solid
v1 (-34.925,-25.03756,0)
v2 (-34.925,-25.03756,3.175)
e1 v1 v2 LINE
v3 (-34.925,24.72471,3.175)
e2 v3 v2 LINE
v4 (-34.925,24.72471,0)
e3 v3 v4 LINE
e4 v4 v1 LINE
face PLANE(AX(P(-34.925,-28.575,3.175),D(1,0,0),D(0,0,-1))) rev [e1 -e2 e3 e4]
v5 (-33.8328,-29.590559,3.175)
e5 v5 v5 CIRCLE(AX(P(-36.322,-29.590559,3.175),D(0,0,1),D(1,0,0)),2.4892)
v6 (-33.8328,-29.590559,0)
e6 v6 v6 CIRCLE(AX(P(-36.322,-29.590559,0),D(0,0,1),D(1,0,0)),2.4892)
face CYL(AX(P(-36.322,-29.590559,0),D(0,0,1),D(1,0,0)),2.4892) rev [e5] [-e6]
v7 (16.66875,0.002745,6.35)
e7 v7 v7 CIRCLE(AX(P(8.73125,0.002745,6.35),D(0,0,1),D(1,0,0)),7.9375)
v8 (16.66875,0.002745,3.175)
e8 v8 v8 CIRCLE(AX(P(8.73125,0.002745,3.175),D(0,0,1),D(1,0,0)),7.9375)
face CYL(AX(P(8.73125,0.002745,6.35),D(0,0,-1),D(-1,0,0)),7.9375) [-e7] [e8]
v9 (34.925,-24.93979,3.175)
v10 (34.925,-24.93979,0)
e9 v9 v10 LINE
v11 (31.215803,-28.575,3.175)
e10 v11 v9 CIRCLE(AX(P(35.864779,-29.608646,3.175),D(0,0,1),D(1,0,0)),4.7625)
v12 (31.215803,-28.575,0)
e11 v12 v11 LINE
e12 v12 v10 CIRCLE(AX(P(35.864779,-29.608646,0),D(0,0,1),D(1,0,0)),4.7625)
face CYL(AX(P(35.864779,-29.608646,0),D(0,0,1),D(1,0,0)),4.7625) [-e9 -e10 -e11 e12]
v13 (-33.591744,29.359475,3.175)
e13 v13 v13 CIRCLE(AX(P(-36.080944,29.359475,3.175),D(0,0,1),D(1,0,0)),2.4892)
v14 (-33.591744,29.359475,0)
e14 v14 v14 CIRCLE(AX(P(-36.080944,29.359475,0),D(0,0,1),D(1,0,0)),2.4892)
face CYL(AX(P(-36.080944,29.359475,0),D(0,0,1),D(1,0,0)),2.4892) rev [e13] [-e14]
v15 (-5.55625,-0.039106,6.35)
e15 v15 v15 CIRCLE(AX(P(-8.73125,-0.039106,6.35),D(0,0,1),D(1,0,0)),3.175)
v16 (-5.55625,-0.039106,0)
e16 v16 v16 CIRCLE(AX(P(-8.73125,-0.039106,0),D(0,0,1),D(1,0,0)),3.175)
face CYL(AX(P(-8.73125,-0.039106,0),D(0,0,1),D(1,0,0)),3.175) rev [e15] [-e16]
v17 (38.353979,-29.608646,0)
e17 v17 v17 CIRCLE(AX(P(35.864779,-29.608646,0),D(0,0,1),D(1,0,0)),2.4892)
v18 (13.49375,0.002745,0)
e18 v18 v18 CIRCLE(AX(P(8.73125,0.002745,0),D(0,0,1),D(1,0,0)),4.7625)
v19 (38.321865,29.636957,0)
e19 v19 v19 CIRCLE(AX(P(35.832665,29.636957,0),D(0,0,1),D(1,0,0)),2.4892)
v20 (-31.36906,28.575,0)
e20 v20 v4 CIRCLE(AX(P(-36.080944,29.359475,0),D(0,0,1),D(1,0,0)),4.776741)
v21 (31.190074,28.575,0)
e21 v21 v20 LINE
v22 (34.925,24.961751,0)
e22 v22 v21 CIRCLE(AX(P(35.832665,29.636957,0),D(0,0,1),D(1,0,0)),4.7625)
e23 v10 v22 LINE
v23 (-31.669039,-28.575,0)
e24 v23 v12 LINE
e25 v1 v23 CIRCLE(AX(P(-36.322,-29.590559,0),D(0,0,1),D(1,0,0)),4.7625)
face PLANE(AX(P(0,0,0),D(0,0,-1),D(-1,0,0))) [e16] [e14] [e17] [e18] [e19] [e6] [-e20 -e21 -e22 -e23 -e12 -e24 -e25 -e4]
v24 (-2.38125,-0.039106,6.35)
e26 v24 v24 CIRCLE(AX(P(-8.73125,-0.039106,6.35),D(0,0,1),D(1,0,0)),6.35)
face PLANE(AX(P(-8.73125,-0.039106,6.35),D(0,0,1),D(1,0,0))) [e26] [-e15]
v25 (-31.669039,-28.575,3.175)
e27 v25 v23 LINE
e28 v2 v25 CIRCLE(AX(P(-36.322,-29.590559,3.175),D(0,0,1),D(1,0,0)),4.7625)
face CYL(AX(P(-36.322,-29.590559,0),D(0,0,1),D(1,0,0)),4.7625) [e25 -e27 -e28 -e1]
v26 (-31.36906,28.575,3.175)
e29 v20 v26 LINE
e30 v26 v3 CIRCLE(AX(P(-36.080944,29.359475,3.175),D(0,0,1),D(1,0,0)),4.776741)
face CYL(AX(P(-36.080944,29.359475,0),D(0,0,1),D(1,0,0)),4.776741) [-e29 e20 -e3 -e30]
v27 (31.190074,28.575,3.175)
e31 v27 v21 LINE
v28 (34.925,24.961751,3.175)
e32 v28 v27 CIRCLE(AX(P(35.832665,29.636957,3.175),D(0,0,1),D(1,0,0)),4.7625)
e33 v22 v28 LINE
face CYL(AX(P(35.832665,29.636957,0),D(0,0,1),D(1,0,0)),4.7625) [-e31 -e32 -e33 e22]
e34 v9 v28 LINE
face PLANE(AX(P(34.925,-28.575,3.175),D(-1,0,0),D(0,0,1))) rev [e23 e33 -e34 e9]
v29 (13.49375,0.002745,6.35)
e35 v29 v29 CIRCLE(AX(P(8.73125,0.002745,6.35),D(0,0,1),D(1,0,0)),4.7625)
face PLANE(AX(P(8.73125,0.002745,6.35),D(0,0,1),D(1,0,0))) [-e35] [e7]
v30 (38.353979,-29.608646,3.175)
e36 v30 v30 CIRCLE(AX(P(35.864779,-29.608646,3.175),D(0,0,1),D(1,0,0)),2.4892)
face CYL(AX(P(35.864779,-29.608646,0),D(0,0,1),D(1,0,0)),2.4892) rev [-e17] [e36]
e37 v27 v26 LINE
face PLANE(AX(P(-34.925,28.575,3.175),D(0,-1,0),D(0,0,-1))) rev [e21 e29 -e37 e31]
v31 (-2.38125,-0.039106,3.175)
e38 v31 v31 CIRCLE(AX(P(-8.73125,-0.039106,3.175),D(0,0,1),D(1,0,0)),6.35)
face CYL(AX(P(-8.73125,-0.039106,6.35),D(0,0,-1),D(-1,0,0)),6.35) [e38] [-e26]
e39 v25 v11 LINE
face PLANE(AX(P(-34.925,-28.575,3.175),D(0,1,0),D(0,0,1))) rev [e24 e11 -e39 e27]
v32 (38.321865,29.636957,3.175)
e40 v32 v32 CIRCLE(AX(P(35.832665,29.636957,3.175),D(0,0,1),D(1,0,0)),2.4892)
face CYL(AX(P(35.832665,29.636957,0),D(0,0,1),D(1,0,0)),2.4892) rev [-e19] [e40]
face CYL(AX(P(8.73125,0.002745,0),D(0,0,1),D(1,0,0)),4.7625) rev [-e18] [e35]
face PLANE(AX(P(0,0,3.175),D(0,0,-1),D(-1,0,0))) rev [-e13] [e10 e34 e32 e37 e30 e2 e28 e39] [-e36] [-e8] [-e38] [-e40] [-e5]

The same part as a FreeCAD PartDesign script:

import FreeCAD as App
import Part
import Sketcher

V = App.Vector
Q = App.Units.Quantity


def add_polygon(sketch, points):
    """Adds a closed chain of lines whose ends are joined by coincident constraints."""
    first, n = sketch.GeometryCount, len(points)
    for a, b in zip(points, points[1:] + points[:1]):
        sketch.addGeometry(Part.LineSegment(App.Vector(*a, 0), App.Vector(*b, 0)), False)
    for i in range(n):
        sketch.addConstraint(Sketcher.Constraint("Coincident", first + i, 2, first + (i + 1) % n, 1))

doc = App.newDocument("Part")
params = doc.addObject("Spreadsheet::Sheet", "Params")
for row, (alias, value) in enumerate([
    ("sketch1_width", "2.75 in"),
    ("sketch1_height", "2.25 in"),
    ("pad1_length", "0.125 in"),
    ("sketch2_diameter", "0.375 in"),
    ("pad2_length", "0.125 in"),
    ("sketch3_diameter", "0.196 in"),
    ("sketch4_diameter", "0.25 in"),
    ("sketch4_diameter2", "0.375 in"),
    ("sketch5_diameter", "0.5 in"),
    ("sketch5_diameter2", "0.625 in"),
    ("pad3_length", "0.125 in"),
    ("sketch6_diameter", "0.25 in"),
    ("sketch6_diameter2", "0.375 in"),
], start=1):
    params.set(f"A{row}", alias)
    params.set(f"B{row}", "=" + value)
    params.setAlias(f"B{row}", alias)

body = doc.addObject("PartDesign::Body", "Body")

sketch1 = body.newObject("Sketcher::SketchObject", "Sketch")
sketch1.AttachmentSupport = (doc.getObject("XY_Plane"), [""])
sketch1.MapMode = "FlatFace"
add_polygon(sketch1, [(-34.925, 28.575), (-34.925, -28.575), (34.925, -28.575), (34.925, 28.575)])
sketch1.addConstraint(Sketcher.Constraint("Vertical", 0))
sketch1.addConstraint(Sketcher.Constraint("Horizontal", 1))
sketch1.addConstraint(Sketcher.Constraint("Vertical", 2))
sketch1.addConstraint(Sketcher.Constraint("Horizontal", 3))
sketch1.addConstraint(Sketcher.Constraint("Symmetric", 0, 2, 2, 2, -1, 1))
sketch1.addConstraint(Sketcher.Constraint("DistanceX", 1, 1, 1, 2, Q("2.75 in")))
sketch1.addConstraint(Sketcher.Constraint("DistanceY", 0, 2, 0, 1, Q("2.25 in")))
sketch1.setExpression("Constraints[9]", "Params.sketch1_width")
sketch1.setExpression("Constraints[10]", "Params.sketch1_height")
pad1 = body.newObject("PartDesign::Pad", "Pad")
pad1.Profile = sketch1
pad1.setExpression("Length", "Params.pad1_length")

sketch2 = body.newObject("Sketcher::SketchObject", "Sketch001")
sketch2.AttachmentSupport = (doc.getObject("XY_Plane"), [""])
sketch2.MapMode = "FlatFace"
sketch2.AttachmentOffset = App.Placement(V(0, 0, 0.125 * 25.4), App.Rotation())
sketch2.addGeometry(Part.Circle(V(-36.080944, 29.359475, 0), V(0, 0, 1), 4.776741), False)
sketch2.addGeometry(Part.Circle(V(35.832665, 29.636957, 0), V(0, 0, 1), 4.7625), False)
sketch2.addGeometry(Part.Circle(V(35.864779, -29.608646, 0), V(0, 0, 1), 4.7625), False)
sketch2.addGeometry(Part.Circle(V(-36.322, -29.590559, 0), V(0, 0, 1), 4.7625), False)
sketch2.addConstraint(Sketcher.Constraint("Equal", 1, 2))
sketch2.addConstraint(Sketcher.Constraint("Equal", 2, 3))
sketch2.addConstraint(Sketcher.Constraint("Diameter", 1, Q("0.375 in")))
sketch2.addConstraint(Sketcher.Constraint("DistanceX", 3, 3, -1, 1, Q("1.43 in")))
sketch2.addConstraint(Sketcher.Constraint("Diameter", 0, Q("9.553482 mm")))
sketch2.addConstraint(Sketcher.Constraint("DistanceX", -1, 1, 2, 3, Q("35.864779 mm")))
sketch2.addConstraint(Sketcher.Constraint("DistanceY", 3, 3, -1, 1, Q("29.590559 mm")))
sketch2.addConstraint(Sketcher.Constraint("DistanceX", 0, 3, 1, 3, Q("71.91361 mm")))
sketch2.addConstraint(Sketcher.Constraint("DistanceY", 0, 3, 1, 3, Q("0.277482 mm")))
sketch2.addConstraint(Sketcher.Constraint("DistanceY", 2, 3, 0, 3, Q("58.968121 mm")))
sketch2.addConstraint(Sketcher.Constraint("DistanceX", 0, 3, -1, 1, Q("36.080944 mm")))
sketch2.addConstraint(Sketcher.Constraint("DistanceY", -1, 1, 0, 3, Q("29.359475 mm")))
sketch2.setExpression("Constraints[2]", "Params.sketch2_diameter")
pad2 = body.newObject("PartDesign::Pad", "Pad001")
pad2.Profile = sketch2
pad2.setExpression("Length", "Params.pad2_length")
pad2.Reversed = True

sketch3 = body.newObject("Sketcher::SketchObject", "Sketch002")
sketch3.AttachmentSupport = (doc.getObject("XY_Plane"), [""])
sketch3.MapMode = "FlatFace"
sketch3.AttachmentOffset = App.Placement(V(0, 0, 0.125 * 25.4), App.Rotation())
sketch3.addGeometry(Part.Circle(V(-36.080944, 29.359475, 0), V(0, 0, 1), 2.4892), False)
sketch3.addGeometry(Part.Circle(V(35.832665, 29.636957, 0), V(0, 0, 1), 2.4892), False)
sketch3.addGeometry(Part.Circle(V(35.864779, -29.608646, 0), V(0, 0, 1), 2.4892), False)
sketch3.addGeometry(Part.Circle(V(-36.322, -29.590559, 0), V(0, 0, 1), 2.4892), False)
sketch3.addConstraint(Sketcher.Constraint("Equal", 0, 1))
sketch3.addConstraint(Sketcher.Constraint("Equal", 1, 2))
sketch3.addConstraint(Sketcher.Constraint("Equal", 2, 3))
sketch3.addConstraint(Sketcher.Constraint("Diameter", 0, Q("0.196 in")))
sketch3.addConstraint(Sketcher.Constraint("DistanceX", 3, 3, -1, 1, Q("1.43 in")))
sketch3.addConstraint(Sketcher.Constraint("DistanceX", -1, 1, 2, 3, Q("35.864779 mm")))
sketch3.addConstraint(Sketcher.Constraint("DistanceY", 3, 3, -1, 1, Q("29.590559 mm")))
sketch3.addConstraint(Sketcher.Constraint("DistanceX", 0, 3, 1, 3, Q("71.91361 mm")))
sketch3.addConstraint(Sketcher.Constraint("DistanceY", 0, 3, 1, 3, Q("0.277482 mm")))
sketch3.addConstraint(Sketcher.Constraint("DistanceY", 2, 3, 0, 3, Q("58.968121 mm")))
sketch3.addConstraint(Sketcher.Constraint("DistanceX", 0, 3, -1, 1, Q("36.080944 mm")))
sketch3.addConstraint(Sketcher.Constraint("DistanceY", -1, 1, 0, 3, Q("29.359475 mm")))
sketch3.setExpression("Constraints[3]", "Params.sketch3_diameter")
pocket1 = body.newObject("PartDesign::Pocket", "Pocket")
pocket1.Profile = sketch3
pocket1.Type = "ThroughAll"

sketch4 = body.newObject("Sketcher::SketchObject", "Sketch003")
sketch4.AttachmentSupport = (doc.getObject("XY_Plane"), [""])
sketch4.MapMode = "FlatFace"
sketch4.AttachmentOffset = App.Placement(V(0, 0, 0.125 * 25.4), App.Rotation())
sketch4.addGeometry(Part.Circle(V(-8.73125, -0.039106, 0), V(0, 0, 1), 3.175), False)
sketch4.addGeometry(Part.Circle(V(8.73125, 0.002745, 0), V(0, 0, 1), 4.7625), False)
sketch4.addConstraint(Sketcher.Constraint("Diameter", 0, Q("0.25 in")))
sketch4.addConstraint(Sketcher.Constraint("Diameter", 1, Q("0.375 in")))
sketch4.addConstraint(Sketcher.Constraint("DistanceX", 0, 3, -1, 1, Q("0.34375 in")))
sketch4.addConstraint(Sketcher.Constraint("DistanceX", -1, 1, 1, 3, Q("0.34375 in")))
sketch4.addConstraint(Sketcher.Constraint("DistanceY", 0, 3, 1, 3, Q("0.041851 mm")))
sketch4.addConstraint(Sketcher.Constraint("DistanceY", 0, 3, -1, 1, Q("0.039106 mm")))
sketch4.setExpression("Constraints[0]", "Params.sketch4_diameter")
sketch4.setExpression("Constraints[1]", "Params.sketch4_diameter2")
pocket2 = body.newObject("PartDesign::Pocket", "Pocket001")
pocket2.Profile = sketch4
pocket2.Type = "ThroughAll"

sketch5 = body.newObject("Sketcher::SketchObject", "Sketch004")
sketch5.AttachmentSupport = (doc.getObject("XY_Plane"), [""])
sketch5.MapMode = "FlatFace"
sketch5.AttachmentOffset = App.Placement(V(0, 0, 0.125 * 25.4), App.Rotation())
sketch5.addGeometry(Part.Circle(V(-8.73125, -0.039106, 0), V(0, 0, 1), 6.35), False)
sketch5.addGeometry(Part.Circle(V(8.73125, 0.002745, 0), V(0, 0, 1), 7.9375), False)
sketch5.addConstraint(Sketcher.Constraint("Diameter", 0, Q("0.5 in")))
sketch5.addConstraint(Sketcher.Constraint("Diameter", 1, Q("0.625 in")))
sketch5.addConstraint(Sketcher.Constraint("DistanceX", 0, 3, -1, 1, Q("0.34375 in")))
sketch5.addConstraint(Sketcher.Constraint("DistanceX", -1, 1, 1, 3, Q("0.34375 in")))
sketch5.addConstraint(Sketcher.Constraint("DistanceY", 0, 3, 1, 3, Q("0.041851 mm")))
sketch5.addConstraint(Sketcher.Constraint("DistanceY", 0, 3, -1, 1, Q("0.039106 mm")))
sketch5.setExpression("Constraints[0]", "Params.sketch5_diameter")
sketch5.setExpression("Constraints[1]", "Params.sketch5_diameter2")
pad3 = body.newObject("PartDesign::Pad", "Pad002")
pad3.Profile = sketch5
pad3.setExpression("Length", "Params.pad3_length")

sketch6 = body.newObject("Sketcher::SketchObject", "Sketch005")
sketch6.AttachmentSupport = (doc.getObject("XY_Plane"), [""])
sketch6.MapMode = "FlatFace"
sketch6.AttachmentOffset = App.Placement(V(0, 0, 0.25 * 25.4), App.Rotation())
sketch6.addGeometry(Part.Circle(V(8.73125, 0.002745, 0), V(0, 0, 1), 4.7625), False)
sketch6.addGeometry(Part.Circle(V(-8.73125, -0.039106, 0), V(0, 0, 1), 3.175), False)
sketch6.addConstraint(Sketcher.Constraint("Diameter", 1, Q("0.25 in")))
sketch6.addConstraint(Sketcher.Constraint("Diameter", 0, Q("0.375 in")))
sketch6.addConstraint(Sketcher.Constraint("DistanceX", -1, 1, 0, 3, Q("0.34375 in")))
sketch6.addConstraint(Sketcher.Constraint("DistanceX", 1, 3, -1, 1, Q("0.34375 in")))
sketch6.addConstraint(Sketcher.Constraint("DistanceY", 1, 3, 0, 3, Q("0.041851 mm")))
sketch6.addConstraint(Sketcher.Constraint("DistanceY", -1, 1, 0, 3, Q("0.002745 mm")))
sketch6.setExpression("Constraints[0]", "Params.sketch6_diameter")
sketch6.setExpression("Constraints[1]", "Params.sketch6_diameter2")
pocket3 = body.newObject("PartDesign::Pocket", "Pocket002")
pocket3.Profile = sketch6
pocket3.Type = "ThroughAll"

doc.recompute()
